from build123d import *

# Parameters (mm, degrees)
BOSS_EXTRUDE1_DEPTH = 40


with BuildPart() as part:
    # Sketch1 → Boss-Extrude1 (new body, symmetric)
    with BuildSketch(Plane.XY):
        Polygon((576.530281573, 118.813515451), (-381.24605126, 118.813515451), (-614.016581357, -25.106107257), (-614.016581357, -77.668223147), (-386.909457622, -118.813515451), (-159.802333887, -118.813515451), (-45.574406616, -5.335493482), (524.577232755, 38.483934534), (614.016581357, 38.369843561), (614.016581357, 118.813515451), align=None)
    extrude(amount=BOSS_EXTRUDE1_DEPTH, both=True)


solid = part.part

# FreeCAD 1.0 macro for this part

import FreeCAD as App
import Part
import Sketcher
Q = App.Units.Quantity

doc = App.newDocument("Part")
params = doc.addObject("Spreadsheet::Sheet", "Params")
for row, (alias, value) in enumerate([
    ("pad1_length", "80 mm"),
], start=1):
    params.set(f"A{row}", alias)
    params.set(f"B{row}", "=" + value)
    params.setAlias(f"B{row}", alias)

body = doc.addObject("PartDesign::Body", "Body")

# Sketch on XY plane
sketch1 = doc.addObject("Sketcher::SketchObject", "Sketch")
body.addObject(sketch1)
sketch1.AttachmentSupport = (doc.XY_Plane, [""])
sketch1.MapMode = "FlatFace"
sketch1.addGeometry([
    Part.LineSegment(App.Vector(-381, 119, 0), App.Vector(-614, -25, 0)),  # 0
    Part.LineSegment(App.Vector(-614, -25, 0), App.Vector(-614, -78, 0)),  # 1
    Part.LineSegment(App.Vector(-614, -78, 0), App.Vector(-387, -119, 0)),  # 2
    Part.LineSegment(App.Vector(-387, -119, 0), App.Vector(-160, -119, 0)),  # 3
    Part.LineSegment(App.Vector(-160, -119, 0), App.Vector(-46, -5, 0)),  # 4
    Part.LineSegment(App.Vector(-46, -5, 0), App.Vector(525, 38, 0)),  # 5
    Part.LineSegment(App.Vector(525, 38, 0), App.Vector(614, 38, 0)),  # 6
    Part.LineSegment(App.Vector(614, 38, 0), App.Vector(614, 119, 0)),  # 7
    Part.LineSegment(App.Vector(614, 119, 0), App.Vector(-381, 119, 0)),  # 8
], False)
sketch1.addConstraint([
    Sketcher.Constraint("Coincident", 0, 2, 1, 1),
    Sketcher.Constraint("Coincident", 1, 2, 2, 1),
    Sketcher.Constraint("Coincident", 2, 2, 3, 1),
    Sketcher.Constraint("Coincident", 3, 2, 4, 1),
    Sketcher.Constraint("Coincident", 4, 2, 5, 1),
    Sketcher.Constraint("Coincident", 5, 2, 6, 1),
    Sketcher.Constraint("Coincident", 6, 2, 7, 1),
    Sketcher.Constraint("Coincident", 7, 2, 8, 1),
    Sketcher.Constraint("Coincident", 8, 2, 0, 1),
    Sketcher.Constraint("Vertical", 1),
    Sketcher.Constraint("Horizontal", 3),
    Sketcher.Constraint("Vertical", 7),
    Sketcher.Constraint("Horizontal", 8),
    Sketcher.Constraint("DistanceY", 7, 1, 7, 2, Q("80.443672 mm")),
    Sketcher.Constraint("Distance", 6, Q("89.439421 mm")),
    Sketcher.Constraint("DistanceX", 3, 1, 3, 2, Q("227.107124 mm")),
    Sketcher.Constraint("DistanceX", 8, 2, 8, 1, Q("995.262633 mm")),
    Sketcher.Constraint("DistanceY", 1, 2, 1, 1, Q("52.562116 mm")),
    Sketcher.Constraint("DistanceX", 0, 2, -1, 1, Q("614.016581 mm")),
    Sketcher.Constraint("DistanceX", -1, 1, 6, 2, Q("614.016581 mm")),
    Sketcher.Constraint("DistanceY", 2, 2, 0, 2, Q("93.707408 mm")),
    Sketcher.Constraint("DistanceY", 3, 2, 4, 2, Q("113.478022 mm")),
    Sketcher.Constraint("DistanceX", 2, 2, 4, 2, Q("341.335051 mm")),
    Sketcher.Constraint("DistanceX", 4, 2, 5, 2, Q("570.151639 mm")),
    Sketcher.Constraint("DistanceY", 4, 2, 5, 2, Q("43.819428 mm")),
    Sketcher.Constraint("DistanceY", 6, 2, 5, 2, Q("0.114091 mm")),
    Sketcher.Constraint("DistanceY", 0, 2, -1, 1, Q("25.106107 mm")),
])
pad1 = doc.addObject("PartDesign::Pad", "Pad")
body.addObject(pad1)
pad1.Profile = sketch1
pad1.setExpression("Length", "Params.pad1_length")
pad1.Midplane = True

doc.recompute()
